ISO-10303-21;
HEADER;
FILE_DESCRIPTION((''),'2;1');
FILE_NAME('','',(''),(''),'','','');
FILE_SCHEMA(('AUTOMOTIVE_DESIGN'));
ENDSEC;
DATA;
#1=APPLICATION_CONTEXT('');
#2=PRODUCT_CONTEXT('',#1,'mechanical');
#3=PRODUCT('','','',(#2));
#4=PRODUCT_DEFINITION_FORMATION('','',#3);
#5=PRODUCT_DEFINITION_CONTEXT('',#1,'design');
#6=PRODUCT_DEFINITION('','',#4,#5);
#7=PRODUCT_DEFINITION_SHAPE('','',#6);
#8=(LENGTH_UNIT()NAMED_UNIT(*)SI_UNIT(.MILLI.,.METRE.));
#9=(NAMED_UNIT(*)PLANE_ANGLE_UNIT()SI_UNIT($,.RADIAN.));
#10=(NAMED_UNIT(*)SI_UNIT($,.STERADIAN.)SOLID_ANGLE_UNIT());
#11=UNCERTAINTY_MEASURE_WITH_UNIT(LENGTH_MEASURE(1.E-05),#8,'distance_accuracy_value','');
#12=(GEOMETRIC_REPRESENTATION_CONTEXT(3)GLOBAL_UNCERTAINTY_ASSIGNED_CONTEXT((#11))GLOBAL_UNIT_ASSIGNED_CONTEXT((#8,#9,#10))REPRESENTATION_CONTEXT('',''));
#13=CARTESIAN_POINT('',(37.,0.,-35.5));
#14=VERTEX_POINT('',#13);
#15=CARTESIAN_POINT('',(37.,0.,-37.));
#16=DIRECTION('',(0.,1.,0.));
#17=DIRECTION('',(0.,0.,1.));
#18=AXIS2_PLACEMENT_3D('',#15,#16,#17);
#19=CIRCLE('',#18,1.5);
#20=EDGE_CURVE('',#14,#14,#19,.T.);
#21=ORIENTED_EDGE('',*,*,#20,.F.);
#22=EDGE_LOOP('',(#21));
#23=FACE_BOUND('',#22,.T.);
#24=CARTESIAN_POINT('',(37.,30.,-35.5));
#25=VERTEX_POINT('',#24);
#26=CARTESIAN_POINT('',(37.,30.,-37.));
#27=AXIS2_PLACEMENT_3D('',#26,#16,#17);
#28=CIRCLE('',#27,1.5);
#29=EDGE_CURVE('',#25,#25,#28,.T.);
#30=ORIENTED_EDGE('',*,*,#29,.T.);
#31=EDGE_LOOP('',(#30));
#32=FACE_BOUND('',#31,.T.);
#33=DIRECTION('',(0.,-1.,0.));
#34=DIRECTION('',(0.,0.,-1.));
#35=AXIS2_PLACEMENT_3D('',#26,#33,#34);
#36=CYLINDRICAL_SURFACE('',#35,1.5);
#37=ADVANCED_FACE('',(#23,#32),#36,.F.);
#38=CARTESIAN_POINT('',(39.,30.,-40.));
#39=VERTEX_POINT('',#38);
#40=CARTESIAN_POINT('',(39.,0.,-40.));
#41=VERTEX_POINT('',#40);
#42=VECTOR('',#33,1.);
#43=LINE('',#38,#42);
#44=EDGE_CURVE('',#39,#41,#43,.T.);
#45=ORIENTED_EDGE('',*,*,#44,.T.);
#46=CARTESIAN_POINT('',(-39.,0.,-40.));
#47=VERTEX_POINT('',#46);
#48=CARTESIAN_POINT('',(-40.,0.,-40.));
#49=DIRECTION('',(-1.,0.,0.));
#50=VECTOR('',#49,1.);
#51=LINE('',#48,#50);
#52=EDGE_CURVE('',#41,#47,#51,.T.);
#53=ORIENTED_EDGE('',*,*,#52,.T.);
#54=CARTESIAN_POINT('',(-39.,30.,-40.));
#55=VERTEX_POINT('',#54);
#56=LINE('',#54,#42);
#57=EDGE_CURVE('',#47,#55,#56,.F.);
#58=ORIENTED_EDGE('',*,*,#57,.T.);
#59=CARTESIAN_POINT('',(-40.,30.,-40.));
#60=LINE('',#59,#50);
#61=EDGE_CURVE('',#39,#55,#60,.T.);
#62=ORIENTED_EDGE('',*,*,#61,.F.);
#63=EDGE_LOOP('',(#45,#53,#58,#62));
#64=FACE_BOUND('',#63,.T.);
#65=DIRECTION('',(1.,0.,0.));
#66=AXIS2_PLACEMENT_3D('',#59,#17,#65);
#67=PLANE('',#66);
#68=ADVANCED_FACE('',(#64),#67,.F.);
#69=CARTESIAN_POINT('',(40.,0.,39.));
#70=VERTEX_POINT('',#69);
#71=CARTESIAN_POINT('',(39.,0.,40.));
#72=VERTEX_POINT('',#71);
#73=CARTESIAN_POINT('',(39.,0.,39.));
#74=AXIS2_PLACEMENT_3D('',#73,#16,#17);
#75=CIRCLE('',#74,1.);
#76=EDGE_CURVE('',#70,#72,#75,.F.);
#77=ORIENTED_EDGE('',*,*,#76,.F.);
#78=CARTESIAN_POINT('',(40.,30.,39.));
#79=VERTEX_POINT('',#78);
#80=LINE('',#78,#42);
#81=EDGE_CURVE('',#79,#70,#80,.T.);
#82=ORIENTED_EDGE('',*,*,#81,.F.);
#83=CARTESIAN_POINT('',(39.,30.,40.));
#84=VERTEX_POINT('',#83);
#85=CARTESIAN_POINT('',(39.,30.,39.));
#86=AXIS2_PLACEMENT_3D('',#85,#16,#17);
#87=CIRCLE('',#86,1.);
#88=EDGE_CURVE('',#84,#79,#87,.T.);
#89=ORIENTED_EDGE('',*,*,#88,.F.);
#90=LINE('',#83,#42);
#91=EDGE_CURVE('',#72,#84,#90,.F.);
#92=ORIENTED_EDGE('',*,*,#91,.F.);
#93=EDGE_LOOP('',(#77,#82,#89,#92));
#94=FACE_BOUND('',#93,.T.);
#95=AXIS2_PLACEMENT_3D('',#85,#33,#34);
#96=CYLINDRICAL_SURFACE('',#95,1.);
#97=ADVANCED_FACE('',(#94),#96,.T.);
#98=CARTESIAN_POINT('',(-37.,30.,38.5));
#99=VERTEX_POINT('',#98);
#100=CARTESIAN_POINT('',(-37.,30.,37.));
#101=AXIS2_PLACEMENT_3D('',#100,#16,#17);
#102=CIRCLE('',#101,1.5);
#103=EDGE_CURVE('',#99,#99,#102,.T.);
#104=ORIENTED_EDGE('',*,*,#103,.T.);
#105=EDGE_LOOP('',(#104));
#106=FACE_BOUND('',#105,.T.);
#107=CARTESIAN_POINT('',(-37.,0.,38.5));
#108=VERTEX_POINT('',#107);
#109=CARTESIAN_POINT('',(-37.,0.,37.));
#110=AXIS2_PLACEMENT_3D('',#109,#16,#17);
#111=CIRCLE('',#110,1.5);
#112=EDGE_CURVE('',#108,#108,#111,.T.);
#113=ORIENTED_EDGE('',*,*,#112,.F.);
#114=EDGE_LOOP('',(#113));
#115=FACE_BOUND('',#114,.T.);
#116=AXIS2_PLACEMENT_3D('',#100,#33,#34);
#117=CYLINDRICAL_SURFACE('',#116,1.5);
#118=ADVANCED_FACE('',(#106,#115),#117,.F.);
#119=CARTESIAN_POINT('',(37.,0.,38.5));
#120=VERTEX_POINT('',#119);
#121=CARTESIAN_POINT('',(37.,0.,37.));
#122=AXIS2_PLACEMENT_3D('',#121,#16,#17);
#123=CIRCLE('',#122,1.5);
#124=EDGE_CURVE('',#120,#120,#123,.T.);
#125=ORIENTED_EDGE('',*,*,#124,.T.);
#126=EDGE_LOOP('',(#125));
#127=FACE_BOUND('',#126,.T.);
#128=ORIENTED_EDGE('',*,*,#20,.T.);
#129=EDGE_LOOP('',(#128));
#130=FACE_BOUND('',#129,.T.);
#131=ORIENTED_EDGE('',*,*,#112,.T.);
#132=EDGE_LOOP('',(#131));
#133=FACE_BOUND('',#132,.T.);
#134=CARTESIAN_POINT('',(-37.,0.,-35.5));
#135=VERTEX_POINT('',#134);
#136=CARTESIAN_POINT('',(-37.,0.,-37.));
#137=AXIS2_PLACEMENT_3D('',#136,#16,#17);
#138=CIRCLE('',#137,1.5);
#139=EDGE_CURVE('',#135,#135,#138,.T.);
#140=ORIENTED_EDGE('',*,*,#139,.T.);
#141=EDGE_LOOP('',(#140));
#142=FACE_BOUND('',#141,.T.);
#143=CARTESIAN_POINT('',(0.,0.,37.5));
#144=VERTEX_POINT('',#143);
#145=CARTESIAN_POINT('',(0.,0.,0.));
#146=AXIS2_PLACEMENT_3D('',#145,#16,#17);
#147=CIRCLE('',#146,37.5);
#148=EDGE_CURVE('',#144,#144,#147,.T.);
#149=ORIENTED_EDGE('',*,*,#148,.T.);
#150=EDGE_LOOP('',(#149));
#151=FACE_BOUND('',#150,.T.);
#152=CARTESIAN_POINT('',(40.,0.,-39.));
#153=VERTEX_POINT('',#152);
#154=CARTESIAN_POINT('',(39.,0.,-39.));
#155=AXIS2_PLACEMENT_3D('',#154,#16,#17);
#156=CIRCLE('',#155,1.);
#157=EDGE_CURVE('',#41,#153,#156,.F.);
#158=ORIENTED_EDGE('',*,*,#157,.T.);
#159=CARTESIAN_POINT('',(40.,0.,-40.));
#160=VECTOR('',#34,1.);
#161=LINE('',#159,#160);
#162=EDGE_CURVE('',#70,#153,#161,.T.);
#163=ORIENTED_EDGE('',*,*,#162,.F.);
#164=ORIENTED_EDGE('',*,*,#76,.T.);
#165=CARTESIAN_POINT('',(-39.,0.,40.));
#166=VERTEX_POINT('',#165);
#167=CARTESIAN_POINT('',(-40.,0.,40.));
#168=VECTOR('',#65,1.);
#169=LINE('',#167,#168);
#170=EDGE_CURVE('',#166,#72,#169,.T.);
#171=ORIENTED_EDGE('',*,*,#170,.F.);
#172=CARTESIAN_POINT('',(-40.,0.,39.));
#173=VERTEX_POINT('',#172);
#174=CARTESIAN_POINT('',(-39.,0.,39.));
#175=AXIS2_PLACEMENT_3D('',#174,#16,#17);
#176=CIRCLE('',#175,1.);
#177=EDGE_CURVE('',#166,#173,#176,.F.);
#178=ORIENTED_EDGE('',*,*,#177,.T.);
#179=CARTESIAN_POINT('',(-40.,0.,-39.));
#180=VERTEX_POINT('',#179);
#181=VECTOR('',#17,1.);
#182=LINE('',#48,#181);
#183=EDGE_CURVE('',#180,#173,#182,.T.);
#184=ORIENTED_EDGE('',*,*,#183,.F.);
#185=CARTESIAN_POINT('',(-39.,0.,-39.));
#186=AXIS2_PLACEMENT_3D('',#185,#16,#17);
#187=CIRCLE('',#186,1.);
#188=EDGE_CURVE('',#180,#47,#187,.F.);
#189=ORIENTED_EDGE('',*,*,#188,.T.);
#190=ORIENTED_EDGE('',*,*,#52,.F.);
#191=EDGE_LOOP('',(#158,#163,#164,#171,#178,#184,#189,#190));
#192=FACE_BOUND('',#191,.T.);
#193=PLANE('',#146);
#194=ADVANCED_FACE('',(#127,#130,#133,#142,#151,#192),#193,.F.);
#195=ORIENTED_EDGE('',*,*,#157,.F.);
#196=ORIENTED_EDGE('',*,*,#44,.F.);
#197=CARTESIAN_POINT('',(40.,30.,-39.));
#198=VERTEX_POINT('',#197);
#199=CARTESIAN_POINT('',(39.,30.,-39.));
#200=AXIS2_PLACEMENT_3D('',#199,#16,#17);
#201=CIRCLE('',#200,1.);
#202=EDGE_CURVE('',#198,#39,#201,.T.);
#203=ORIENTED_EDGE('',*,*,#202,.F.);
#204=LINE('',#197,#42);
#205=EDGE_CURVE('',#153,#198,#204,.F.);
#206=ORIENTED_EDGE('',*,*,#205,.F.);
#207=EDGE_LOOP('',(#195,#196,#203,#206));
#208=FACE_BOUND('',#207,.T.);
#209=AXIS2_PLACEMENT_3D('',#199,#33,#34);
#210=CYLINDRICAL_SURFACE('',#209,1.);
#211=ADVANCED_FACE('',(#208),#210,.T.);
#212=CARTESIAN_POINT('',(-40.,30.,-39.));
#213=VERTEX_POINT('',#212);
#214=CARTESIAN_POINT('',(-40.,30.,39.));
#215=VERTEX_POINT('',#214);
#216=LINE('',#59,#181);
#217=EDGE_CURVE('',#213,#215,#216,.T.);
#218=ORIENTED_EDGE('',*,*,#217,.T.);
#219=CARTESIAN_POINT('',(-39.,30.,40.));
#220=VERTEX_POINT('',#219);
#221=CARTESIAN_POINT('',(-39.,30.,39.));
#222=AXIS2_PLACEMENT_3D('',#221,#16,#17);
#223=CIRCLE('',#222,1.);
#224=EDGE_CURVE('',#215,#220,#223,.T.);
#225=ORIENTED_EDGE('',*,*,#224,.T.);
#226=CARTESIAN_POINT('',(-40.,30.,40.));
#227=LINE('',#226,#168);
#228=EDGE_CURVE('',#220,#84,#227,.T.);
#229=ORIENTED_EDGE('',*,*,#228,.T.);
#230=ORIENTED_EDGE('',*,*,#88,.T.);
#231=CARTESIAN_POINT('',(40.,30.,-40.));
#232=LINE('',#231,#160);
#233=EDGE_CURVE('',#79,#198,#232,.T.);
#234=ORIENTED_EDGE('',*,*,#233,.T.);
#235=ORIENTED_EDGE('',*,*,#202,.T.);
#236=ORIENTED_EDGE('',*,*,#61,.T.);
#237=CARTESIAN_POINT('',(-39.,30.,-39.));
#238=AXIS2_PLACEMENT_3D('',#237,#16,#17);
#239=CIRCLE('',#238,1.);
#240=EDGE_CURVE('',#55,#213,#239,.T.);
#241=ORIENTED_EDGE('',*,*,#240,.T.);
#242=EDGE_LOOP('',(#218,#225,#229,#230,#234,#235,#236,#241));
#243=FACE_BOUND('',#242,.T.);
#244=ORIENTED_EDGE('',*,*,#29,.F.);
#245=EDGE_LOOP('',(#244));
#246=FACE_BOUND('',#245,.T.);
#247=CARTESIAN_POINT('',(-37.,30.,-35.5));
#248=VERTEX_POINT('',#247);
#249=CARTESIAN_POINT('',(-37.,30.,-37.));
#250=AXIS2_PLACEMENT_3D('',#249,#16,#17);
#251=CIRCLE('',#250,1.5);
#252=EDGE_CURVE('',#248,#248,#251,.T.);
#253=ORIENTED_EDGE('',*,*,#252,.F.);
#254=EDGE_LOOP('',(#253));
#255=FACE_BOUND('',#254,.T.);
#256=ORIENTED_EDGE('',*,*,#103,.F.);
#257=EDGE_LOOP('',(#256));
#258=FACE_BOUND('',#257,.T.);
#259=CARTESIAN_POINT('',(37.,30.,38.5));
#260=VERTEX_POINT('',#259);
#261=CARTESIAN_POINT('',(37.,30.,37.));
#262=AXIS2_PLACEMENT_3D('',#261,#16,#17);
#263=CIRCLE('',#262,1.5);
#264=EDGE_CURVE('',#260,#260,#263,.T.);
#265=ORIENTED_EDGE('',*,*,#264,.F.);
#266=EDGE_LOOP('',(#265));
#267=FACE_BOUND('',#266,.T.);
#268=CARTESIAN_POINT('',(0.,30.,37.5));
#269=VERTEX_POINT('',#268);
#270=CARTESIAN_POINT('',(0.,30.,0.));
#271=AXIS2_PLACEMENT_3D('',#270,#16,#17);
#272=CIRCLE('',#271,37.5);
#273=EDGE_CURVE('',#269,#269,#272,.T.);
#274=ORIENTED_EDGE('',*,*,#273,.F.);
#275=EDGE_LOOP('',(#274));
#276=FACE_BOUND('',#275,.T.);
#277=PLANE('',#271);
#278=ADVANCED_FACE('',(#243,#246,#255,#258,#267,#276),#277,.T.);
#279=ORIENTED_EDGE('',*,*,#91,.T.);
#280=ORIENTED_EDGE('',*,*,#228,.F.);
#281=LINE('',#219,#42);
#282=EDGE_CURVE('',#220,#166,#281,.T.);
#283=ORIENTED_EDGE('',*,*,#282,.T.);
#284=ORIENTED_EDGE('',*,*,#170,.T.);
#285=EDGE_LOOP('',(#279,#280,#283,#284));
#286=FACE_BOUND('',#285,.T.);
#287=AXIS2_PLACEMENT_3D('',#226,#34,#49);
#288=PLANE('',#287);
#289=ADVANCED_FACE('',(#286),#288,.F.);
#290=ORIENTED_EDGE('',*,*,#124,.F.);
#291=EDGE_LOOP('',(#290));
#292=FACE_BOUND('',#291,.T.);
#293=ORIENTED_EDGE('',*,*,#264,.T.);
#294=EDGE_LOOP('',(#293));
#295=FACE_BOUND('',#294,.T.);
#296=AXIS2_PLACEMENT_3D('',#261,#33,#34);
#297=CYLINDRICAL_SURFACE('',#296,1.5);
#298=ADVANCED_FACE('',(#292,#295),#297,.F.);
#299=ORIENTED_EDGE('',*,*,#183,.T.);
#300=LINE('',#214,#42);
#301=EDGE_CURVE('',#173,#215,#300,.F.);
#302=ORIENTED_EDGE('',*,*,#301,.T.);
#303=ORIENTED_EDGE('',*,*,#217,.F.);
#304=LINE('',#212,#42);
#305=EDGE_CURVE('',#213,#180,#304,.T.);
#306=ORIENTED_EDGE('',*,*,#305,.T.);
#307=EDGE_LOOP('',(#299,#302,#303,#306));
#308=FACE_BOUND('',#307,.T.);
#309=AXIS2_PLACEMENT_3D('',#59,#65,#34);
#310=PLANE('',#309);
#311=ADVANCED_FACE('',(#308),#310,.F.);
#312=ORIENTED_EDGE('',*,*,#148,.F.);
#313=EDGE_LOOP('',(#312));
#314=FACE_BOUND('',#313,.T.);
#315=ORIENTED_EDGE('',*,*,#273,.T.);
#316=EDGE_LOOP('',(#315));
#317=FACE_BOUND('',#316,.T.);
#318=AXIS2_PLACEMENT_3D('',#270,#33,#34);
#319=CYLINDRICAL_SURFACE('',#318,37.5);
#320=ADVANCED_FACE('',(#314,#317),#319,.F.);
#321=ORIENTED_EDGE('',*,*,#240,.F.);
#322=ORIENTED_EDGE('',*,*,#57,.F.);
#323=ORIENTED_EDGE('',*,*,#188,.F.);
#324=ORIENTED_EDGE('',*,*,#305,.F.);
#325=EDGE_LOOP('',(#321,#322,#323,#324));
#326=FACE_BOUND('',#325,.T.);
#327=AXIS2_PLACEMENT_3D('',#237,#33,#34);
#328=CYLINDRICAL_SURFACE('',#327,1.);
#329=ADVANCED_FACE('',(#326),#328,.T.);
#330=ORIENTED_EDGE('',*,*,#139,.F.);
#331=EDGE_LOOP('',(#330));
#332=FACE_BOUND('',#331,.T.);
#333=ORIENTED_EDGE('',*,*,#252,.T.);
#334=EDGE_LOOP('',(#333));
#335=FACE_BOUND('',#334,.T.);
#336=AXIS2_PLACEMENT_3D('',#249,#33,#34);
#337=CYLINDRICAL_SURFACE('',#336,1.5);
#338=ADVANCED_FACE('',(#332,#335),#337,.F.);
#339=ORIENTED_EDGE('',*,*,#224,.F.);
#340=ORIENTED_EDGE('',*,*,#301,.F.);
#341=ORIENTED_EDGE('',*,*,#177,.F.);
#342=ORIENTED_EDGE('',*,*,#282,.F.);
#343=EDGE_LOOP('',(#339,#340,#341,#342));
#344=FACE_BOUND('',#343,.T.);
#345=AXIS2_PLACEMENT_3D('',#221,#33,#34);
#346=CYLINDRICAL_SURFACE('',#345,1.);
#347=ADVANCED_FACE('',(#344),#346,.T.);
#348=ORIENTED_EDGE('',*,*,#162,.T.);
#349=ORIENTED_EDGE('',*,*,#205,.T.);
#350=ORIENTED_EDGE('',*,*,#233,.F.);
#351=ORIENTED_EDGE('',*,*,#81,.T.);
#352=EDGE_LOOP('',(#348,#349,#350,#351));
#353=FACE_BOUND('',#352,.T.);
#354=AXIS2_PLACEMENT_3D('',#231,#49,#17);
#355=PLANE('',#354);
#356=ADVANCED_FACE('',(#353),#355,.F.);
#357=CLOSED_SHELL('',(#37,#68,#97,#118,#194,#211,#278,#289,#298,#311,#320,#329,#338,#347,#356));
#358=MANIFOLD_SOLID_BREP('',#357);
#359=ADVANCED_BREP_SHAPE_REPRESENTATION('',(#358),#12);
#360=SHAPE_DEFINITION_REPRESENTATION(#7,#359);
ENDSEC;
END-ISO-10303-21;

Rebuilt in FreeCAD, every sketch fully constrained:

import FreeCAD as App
import Part
import Sketcher

V = App.Vector


def edges_at(feature, points):
    """Names of the edges that pass closest to the given points."""
    edges = feature.Shape.Edges
    near = lambda p: min(range(len(edges)), key=lambda i: edges[i].distToShape(Part.Vertex(*p))[0])
    return sorted({f"Edge{near(p) + 1}" for p in points})


def add_polygon(sketch, points):
    """Adds a closed chain of lines whose ends are joined by coincident constraints."""
    first, n = sketch.GeometryCount, len(points)
    for a, b in zip(points, points[1:] + points[:1]):
        sketch.addGeometry(Part.LineSegment(App.Vector(*a, 0), App.Vector(*b, 0)), False)
    for i in range(n):
        sketch.addConstraint(Sketcher.Constraint("Coincident", first + i, 2, first + (i + 1) % n, 1))

doc = App.newDocument("Part")
body = doc.addObject("PartDesign::Body", "Body")

# Sketch on XZ plane
sketch1 = body.newObject("Sketcher::SketchObject", "Sketch")
sketch1.AttachmentSupport = (doc.getObject("XZ_Plane"), [""])
sketch1.MapMode = "FlatFace"
add_polygon(sketch1, [(-40, -40), (-40, 40), (40, 40), (40, -40)])  # lines 0-3
sketch1.addGeometry(Part.Circle(V(-37, 37, 0), V(0, 0, 1), 1.5), False)  # 4
sketch1.addGeometry(Part.Circle(V(37, 37, 0), V(0, 0, 1), 1.5), False)  # 5
sketch1.addGeometry(Part.Circle(V(-37, -37, 0), V(0, 0, 1), 1.5), False)  # 6
sketch1.addGeometry(Part.Circle(V(0, 0, 0), V(0, 0, 1), 37.5), False)  # 7
sketch1.addGeometry(Part.Circle(V(37, -37, 0), V(0, 0, 1), 1.5), False)  # 8
sketch1.addConstraint(Sketcher.Constraint("Vertical", 0))
sketch1.addConstraint(Sketcher.Constraint("Horizontal", 1))
sketch1.addConstraint(Sketcher.Constraint("Vertical", 2))
sketch1.addConstraint(Sketcher.Constraint("Horizontal", 3))
sketch1.addConstraint(Sketcher.Constraint("Coincident", 7, 3, -1, 1))
sketch1.addConstraint(Sketcher.Constraint("Equal", 4, 5))
sketch1.addConstraint(Sketcher.Constraint("Equal", 5, 6))
sketch1.addConstraint(Sketcher.Constraint("Equal", 6, 8))
sketch1.addConstraint(Sketcher.Constraint("Symmetric", 5, 3, 6, 3, -1, 1))
sketch1.addConstraint(Sketcher.Constraint("Symmetric", 4, 3, 8, 3, -1, 1))
sketch1.addConstraint(Sketcher.Constraint("Symmetric", 0, 2, 2, 2, -1, 1))
sketch1.addConstraint(Sketcher.Constraint("Symmetric", 4, 3, 5, 3, -2))
sketch1.addConstraint(Sketcher.Constraint("Equal", 3, 0))
sketch1.addConstraint(Sketcher.Constraint("Diameter", 4, 3.0))
sketch1.addConstraint(Sketcher.Constraint("Diameter", 7, 75.0))
sketch1.addConstraint(Sketcher.Constraint("DistanceX", 1, 1, 1, 2, 80.0))
sketch1.addConstraint(Sketcher.Constraint("DistanceX", 4, 3, -1, 1, 37.0))
sketch1.addConstraint(Sketcher.Constraint("DistanceY", -1, 1, 4, 3, 37.0))
pad1 = body.newObject("PartDesign::Pad", "Pad")
pad1.Profile = sketch1
pad1.Length = 30
pad1.Reversed = True
doc.recompute()

fillet = body.newObject("PartDesign::Fillet", "Fillet")
fillet.Base = (pad1, edges_at(pad1, [
    (40, 15, 40),
    (-40, 15, 40),
    (-40, 15, -40),
    (40, 15, -40),
]))
fillet.Radius = 1

doc.recompute()
